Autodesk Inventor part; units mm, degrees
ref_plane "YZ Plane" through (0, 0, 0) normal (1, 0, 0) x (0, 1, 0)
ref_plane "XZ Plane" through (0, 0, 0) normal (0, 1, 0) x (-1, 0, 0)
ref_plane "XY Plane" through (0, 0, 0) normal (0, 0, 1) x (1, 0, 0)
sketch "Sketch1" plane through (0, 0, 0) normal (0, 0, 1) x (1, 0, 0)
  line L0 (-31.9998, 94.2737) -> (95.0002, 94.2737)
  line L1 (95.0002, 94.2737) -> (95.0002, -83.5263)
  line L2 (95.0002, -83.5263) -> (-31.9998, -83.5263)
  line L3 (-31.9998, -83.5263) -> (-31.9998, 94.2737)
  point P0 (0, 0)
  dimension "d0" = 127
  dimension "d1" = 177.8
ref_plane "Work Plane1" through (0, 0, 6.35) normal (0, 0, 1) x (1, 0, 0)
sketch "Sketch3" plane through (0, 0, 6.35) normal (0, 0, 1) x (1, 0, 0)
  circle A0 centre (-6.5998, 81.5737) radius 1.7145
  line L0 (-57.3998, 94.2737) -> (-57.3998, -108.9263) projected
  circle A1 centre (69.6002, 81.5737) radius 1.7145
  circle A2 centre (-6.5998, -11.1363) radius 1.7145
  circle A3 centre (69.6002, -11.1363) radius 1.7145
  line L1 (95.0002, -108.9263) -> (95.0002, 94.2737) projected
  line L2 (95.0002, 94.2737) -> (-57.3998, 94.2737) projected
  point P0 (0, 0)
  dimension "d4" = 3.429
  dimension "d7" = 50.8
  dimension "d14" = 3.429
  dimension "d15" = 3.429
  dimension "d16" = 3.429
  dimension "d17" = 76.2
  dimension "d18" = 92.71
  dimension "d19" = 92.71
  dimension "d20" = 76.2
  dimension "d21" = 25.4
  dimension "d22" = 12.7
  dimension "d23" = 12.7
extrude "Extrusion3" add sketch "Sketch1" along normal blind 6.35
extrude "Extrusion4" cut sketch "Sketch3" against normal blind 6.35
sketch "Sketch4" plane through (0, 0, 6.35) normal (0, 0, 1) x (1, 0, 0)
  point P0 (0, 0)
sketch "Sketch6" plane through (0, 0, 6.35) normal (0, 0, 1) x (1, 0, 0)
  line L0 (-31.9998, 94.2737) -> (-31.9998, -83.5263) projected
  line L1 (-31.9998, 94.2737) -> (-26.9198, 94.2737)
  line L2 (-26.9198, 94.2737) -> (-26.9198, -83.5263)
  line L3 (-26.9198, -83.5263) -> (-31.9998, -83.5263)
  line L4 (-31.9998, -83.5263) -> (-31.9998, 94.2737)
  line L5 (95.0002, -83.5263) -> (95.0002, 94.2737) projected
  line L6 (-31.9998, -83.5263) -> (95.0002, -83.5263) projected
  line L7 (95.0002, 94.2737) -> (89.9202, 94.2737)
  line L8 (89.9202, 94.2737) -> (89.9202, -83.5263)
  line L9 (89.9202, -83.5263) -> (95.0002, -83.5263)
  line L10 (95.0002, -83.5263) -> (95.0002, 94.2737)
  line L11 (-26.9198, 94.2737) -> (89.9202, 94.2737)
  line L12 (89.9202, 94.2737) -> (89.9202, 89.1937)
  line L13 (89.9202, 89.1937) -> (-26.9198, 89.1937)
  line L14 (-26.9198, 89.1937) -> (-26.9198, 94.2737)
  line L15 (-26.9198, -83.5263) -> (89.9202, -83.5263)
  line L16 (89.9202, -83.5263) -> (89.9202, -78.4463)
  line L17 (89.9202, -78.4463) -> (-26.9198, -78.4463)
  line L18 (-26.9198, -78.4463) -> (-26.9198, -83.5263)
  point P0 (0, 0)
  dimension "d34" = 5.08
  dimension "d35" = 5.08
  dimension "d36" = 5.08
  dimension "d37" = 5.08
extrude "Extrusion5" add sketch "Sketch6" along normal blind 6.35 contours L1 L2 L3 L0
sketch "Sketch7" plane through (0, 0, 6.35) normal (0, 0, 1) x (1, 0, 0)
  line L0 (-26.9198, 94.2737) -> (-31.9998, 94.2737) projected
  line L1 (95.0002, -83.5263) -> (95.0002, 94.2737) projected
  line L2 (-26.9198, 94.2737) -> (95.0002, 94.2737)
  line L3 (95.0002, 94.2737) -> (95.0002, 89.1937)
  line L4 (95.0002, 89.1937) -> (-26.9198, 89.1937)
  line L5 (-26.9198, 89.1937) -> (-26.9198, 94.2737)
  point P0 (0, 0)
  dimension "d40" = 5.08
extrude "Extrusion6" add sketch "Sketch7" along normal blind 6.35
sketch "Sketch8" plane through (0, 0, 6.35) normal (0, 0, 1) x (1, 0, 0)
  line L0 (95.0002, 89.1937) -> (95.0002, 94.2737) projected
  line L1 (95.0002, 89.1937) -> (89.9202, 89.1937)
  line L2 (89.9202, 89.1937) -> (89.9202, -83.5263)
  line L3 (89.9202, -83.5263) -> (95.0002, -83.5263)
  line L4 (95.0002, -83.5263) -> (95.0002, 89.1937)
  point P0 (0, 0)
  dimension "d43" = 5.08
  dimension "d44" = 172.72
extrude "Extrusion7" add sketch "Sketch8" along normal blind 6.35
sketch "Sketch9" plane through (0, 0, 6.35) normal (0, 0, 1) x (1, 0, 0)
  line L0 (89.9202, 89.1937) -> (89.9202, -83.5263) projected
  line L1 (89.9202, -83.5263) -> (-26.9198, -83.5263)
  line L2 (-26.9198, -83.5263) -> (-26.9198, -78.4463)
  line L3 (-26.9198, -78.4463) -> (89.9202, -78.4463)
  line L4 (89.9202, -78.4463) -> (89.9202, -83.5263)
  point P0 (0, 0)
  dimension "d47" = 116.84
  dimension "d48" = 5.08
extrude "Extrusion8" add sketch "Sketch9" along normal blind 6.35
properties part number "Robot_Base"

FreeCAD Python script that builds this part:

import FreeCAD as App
import Part
import Sketcher

V = App.Vector
Q = App.Units.Quantity

doc = App.newDocument("Part")
body = doc.addObject("PartDesign::Body", "Body")

# Sketch on XY plane
sketch1 = body.newObject("Sketcher::SketchObject", "Sketch")
sketch1.AttachmentSupport = (doc.getObject("XY_Plane"), [""])
sketch1.MapMode = "FlatFace"
sketch1.addGeometry([
    Part.LineSegment(V(95, 94, 0), V(-32, 94, 0)),
    Part.LineSegment(V(-32, 94, 0), V(-32, -84, 0)),
    Part.LineSegment(V(-32, -84, 0), V(95, -84, 0)),
    Part.LineSegment(V(95, -84, 0), V(95, 94, 0)),
], False)
sketch1.addConstraint([
    Sketcher.Constraint("Coincident", 0, 2, 1, 1),
    Sketcher.Constraint("Coincident", 1, 2, 2, 1),
    Sketcher.Constraint("Coincident", 2, 2, 3, 1),
    Sketcher.Constraint("Coincident", 3, 2, 0, 1),
    Sketcher.Constraint("Horizontal", 0),
    Sketcher.Constraint("Vertical", 1),
    Sketcher.Constraint("Horizontal", 2),
    Sketcher.Constraint("Vertical", 3),
    Sketcher.Constraint("DistanceX", 0, 2, 0, 1, Q("5 in")),
    Sketcher.Constraint("DistanceY", 1, 2, 1, 1, Q("7 in")),
    Sketcher.Constraint("DistanceX", 0, 2, -1, 1, Q("31.9998 mm")),
    Sketcher.Constraint("DistanceY", -1, 1, 0, 2, Q("94.2737 mm")),
])
pad1 = body.newObject("PartDesign::Pad", "Pad")
pad1.Profile = sketch1
pad1.Length = Q("0.25 in")

# Sketch on XY plane
sketch2 = body.newObject("Sketcher::SketchObject", "Sketch001")
sketch2.AttachmentSupport = (doc.getObject("XY_Plane"), [""])
sketch2.MapMode = "FlatFace"
sketch2.AttachmentOffset = App.Placement(V(0, 0, 0.25 * 25.4), App.Rotation())
sketch2.addGeometry([
    Part.Circle(V(-6.6, 81.6, 0), V(0, 0, 1), 1.7),
    Part.Circle(V(69.6, 81.6, 0), V(0, 0, 1), 1.7),
    Part.Circle(V(-6.6, -11.1, 0), V(0, 0, 1), 1.7),
    Part.Circle(V(69.6, -11.1, 0), V(0, 0, 1), 1.7),
], False)
sketch2.addConstraint([
    Sketcher.Constraint("Equal", 0, 1),
    Sketcher.Constraint("Equal", 1, 2),
    Sketcher.Constraint("Equal", 2, 3),
    Sketcher.Constraint("Horizontal", 0, 3, 1, 3),
    Sketcher.Constraint("Horizontal", 2, 3, 3, 3),
    Sketcher.Constraint("Vertical", 0, 3, 2, 3),
    Sketcher.Constraint("Vertical", 1, 3, 3, 3),
    Sketcher.Constraint("Diameter", 0, Q("0.135 in")),
    Sketcher.Constraint("DistanceX", 0, 3, 1, 3, Q("3 in")),
    Sketcher.Constraint("DistanceY", 2, 3, 0, 3, Q("3.65 in")),
    Sketcher.Constraint("DistanceX", 0, 3, -1, 1, Q("6.5998 mm")),
    Sketcher.Constraint("DistanceY", -1, 1, 0, 3, Q("81.5737 mm")),
])
pocket1 = body.newObject("PartDesign::Pocket", "Pocket")
pocket1.Profile = sketch2
pocket1.Length = Q("0.25 in")

# Sketch on XY plane
sketch3 = body.newObject("Sketcher::SketchObject", "Sketch002")
sketch3.AttachmentSupport = (doc.getObject("XY_Plane"), [""])
sketch3.MapMode = "FlatFace"
sketch3.AttachmentOffset = App.Placement(V(0, 0, 0.25 * 25.4), App.Rotation())
sketch3.addGeometry([
    Part.LineSegment(V(-27, 94, 0), V(-32, 94, 0)),
    Part.LineSegment(V(-32, 94, 0), V(-32, -84, 0)),
    Part.LineSegment(V(-32, -84, 0), V(-27, -84, 0)),
    Part.LineSegment(V(-27, -84, 0), V(-27, 94, 0)),
], False)
sketch3.addConstraint([
    Sketcher.Constraint("Coincident", 0, 2, 1, 1),
    Sketcher.Constraint("Coincident", 1, 2, 2, 1),
    Sketcher.Constraint("Coincident", 2, 2, 3, 1),
    Sketcher.Constraint("Coincident", 3, 2, 0, 1),
    Sketcher.Constraint("Horizontal", 0),
    Sketcher.Constraint("Vertical", 1),
    Sketcher.Constraint("Horizontal", 2),
    Sketcher.Constraint("Vertical", 3),
    Sketcher.Constraint("DistanceX", 0, 2, 0, 1, Q("0.2 in")),
    Sketcher.Constraint("DistanceY", 1, 2, 1, 1, Q("7 in")),
    Sketcher.Constraint("DistanceX", 0, 2, -1, 1, Q("31.9998 mm")),
    Sketcher.Constraint("DistanceY", -1, 1, 0, 2, Q("94.2737 mm")),
])
pad2 = body.newObject("PartDesign::Pad", "Pad001")
pad2.Profile = sketch3
pad2.Length = Q("0.25 in")

# Sketch on XY plane
sketch4 = body.newObject("Sketcher::SketchObject", "Sketch003")
sketch4.AttachmentSupport = (doc.getObject("XY_Plane"), [""])
sketch4.MapMode = "FlatFace"
sketch4.AttachmentOffset = App.Placement(V(0, 0, 0.25 * 25.4), App.Rotation())
sketch4.addGeometry([
    Part.LineSegment(V(-27, 89, 0), V(95, 89, 0)),
    Part.LineSegment(V(95, 89, 0), V(95, 94, 0)),
    Part.LineSegment(V(95, 94, 0), V(-27, 94, 0)),
    Part.LineSegment(V(-27, 94, 0), V(-27, 89, 0)),
], False)
sketch4.addConstraint([
    Sketcher.Constraint("Coincident", 0, 2, 1, 1),
    Sketcher.Constraint("Coincident", 1, 2, 2, 1),
    Sketcher.Constraint("Coincident", 2, 2, 3, 1),
    Sketcher.Constraint("Coincident", 3, 2, 0, 1),
    Sketcher.Constraint("Horizontal", 0),
    Sketcher.Constraint("Vertical", 1),
    Sketcher.Constraint("Horizontal", 2),
    Sketcher.Constraint("Vertical", 3),
    Sketcher.Constraint("DistanceY", 1, 1, 1, 2, Q("0.2 in")),
    Sketcher.Constraint("DistanceX", 0, 1, 0, 2, Q("4.8 in")),
    Sketcher.Constraint("DistanceX", -1, 1, 0, 2, Q("95.0002 mm")),
    Sketcher.Constraint("DistanceY", -1, 1, 0, 2, Q("89.1937 mm")),
])
pad3 = body.newObject("PartDesign::Pad", "Pad002")
pad3.Profile = sketch4
pad3.Length = Q("0.25 in")

# Sketch on XY plane
sketch5 = body.newObject("Sketcher::SketchObject", "Sketch004")
sketch5.AttachmentSupport = (doc.getObject("XY_Plane"), [""])
sketch5.MapMode = "FlatFace"
sketch5.AttachmentOffset = App.Placement(V(0, 0, 0.25 * 25.4), App.Rotation())
sketch5.addGeometry([
    Part.LineSegment(V(95, -84, 0), V(95, 89, 0)),
    Part.LineSegment(V(95, 89, 0), V(90, 89, 0)),
    Part.LineSegment(V(90, 89, 0), V(90, -84, 0)),
    Part.LineSegment(V(90, -84, 0), V(95, -84, 0)),
], False)
sketch5.addConstraint([
    Sketcher.Constraint("Coincident", 0, 2, 1, 1),
    Sketcher.Constraint("Coincident", 1, 2, 2, 1),
    Sketcher.Constraint("Coincident", 2, 2, 3, 1),
    Sketcher.Constraint("Coincident", 3, 2, 0, 1),
    Sketcher.Constraint("Vertical", 0),
    Sketcher.Constraint("Horizontal", 1),
    Sketcher.Constraint("Vertical", 2),
    Sketcher.Constraint("Horizontal", 3),
    Sketcher.Constraint("DistanceX", 1, 2, 1, 1, Q("0.2 in")),
    Sketcher.Constraint("DistanceY", 0, 1, 0, 2, Q("6.8 in")),
    Sketcher.Constraint("DistanceX", -1, 1, 0, 2, Q("95.0002 mm")),
    Sketcher.Constraint("DistanceY", -1, 1, 0, 2, Q("89.1937 mm")),
])
pad4 = body.newObject("PartDesign::Pad", "Pad003")
pad4.Profile = sketch5
pad4.Length = Q("0.25 in")

# Sketch on XY plane
sketch6 = body.newObject("Sketcher::SketchObject", "Sketch005")
sketch6.AttachmentSupport = (doc.getObject("XY_Plane"), [""])
sketch6.MapMode = "FlatFace"
sketch6.AttachmentOffset = App.Placement(V(0, 0, 0.25 * 25.4), App.Rotation())
sketch6.addGeometry([
    Part.LineSegment(V(90, -84, 0), V(90, -78, 0)),
    Part.LineSegment(V(90, -78, 0), V(-27, -78, 0)),
    Part.LineSegment(V(-27, -78, 0), V(-27, -84, 0)),
    Part.LineSegment(V(-27, -84, 0), V(90, -84, 0)),
], False)
sketch6.addConstraint([
    Sketcher.Constraint("Coincident", 0, 2, 1, 1),
    Sketcher.Constraint("Coincident", 1, 2, 2, 1),
    Sketcher.Constraint("Coincident", 2, 2, 3, 1),
    Sketcher.Constraint("Coincident", 3, 2, 0, 1),
    Sketcher.Constraint("Vertical", 0),
    Sketcher.Constraint("Horizontal", 1),
    Sketcher.Constraint("Vertical", 2),
    Sketcher.Constraint("Horizontal", 3),
    Sketcher.Constraint("DistanceX", 1, 2, 1, 1, Q("4.6 in")),
    Sketcher.Constraint("DistanceY", 0, 1, 0, 2, Q("0.2 in")),
    Sketcher.Constraint("DistanceX", -1, 1, 0, 2, Q("89.9202 mm")),
    Sketcher.Constraint("DistanceY", 0, 2, -1, 1, Q("78.4463 mm")),
])
pad5 = body.newObject("PartDesign::Pad", "Pad004")
pad5.Profile = sketch6
pad5.Length = Q("0.25 in")

doc.recompute()
